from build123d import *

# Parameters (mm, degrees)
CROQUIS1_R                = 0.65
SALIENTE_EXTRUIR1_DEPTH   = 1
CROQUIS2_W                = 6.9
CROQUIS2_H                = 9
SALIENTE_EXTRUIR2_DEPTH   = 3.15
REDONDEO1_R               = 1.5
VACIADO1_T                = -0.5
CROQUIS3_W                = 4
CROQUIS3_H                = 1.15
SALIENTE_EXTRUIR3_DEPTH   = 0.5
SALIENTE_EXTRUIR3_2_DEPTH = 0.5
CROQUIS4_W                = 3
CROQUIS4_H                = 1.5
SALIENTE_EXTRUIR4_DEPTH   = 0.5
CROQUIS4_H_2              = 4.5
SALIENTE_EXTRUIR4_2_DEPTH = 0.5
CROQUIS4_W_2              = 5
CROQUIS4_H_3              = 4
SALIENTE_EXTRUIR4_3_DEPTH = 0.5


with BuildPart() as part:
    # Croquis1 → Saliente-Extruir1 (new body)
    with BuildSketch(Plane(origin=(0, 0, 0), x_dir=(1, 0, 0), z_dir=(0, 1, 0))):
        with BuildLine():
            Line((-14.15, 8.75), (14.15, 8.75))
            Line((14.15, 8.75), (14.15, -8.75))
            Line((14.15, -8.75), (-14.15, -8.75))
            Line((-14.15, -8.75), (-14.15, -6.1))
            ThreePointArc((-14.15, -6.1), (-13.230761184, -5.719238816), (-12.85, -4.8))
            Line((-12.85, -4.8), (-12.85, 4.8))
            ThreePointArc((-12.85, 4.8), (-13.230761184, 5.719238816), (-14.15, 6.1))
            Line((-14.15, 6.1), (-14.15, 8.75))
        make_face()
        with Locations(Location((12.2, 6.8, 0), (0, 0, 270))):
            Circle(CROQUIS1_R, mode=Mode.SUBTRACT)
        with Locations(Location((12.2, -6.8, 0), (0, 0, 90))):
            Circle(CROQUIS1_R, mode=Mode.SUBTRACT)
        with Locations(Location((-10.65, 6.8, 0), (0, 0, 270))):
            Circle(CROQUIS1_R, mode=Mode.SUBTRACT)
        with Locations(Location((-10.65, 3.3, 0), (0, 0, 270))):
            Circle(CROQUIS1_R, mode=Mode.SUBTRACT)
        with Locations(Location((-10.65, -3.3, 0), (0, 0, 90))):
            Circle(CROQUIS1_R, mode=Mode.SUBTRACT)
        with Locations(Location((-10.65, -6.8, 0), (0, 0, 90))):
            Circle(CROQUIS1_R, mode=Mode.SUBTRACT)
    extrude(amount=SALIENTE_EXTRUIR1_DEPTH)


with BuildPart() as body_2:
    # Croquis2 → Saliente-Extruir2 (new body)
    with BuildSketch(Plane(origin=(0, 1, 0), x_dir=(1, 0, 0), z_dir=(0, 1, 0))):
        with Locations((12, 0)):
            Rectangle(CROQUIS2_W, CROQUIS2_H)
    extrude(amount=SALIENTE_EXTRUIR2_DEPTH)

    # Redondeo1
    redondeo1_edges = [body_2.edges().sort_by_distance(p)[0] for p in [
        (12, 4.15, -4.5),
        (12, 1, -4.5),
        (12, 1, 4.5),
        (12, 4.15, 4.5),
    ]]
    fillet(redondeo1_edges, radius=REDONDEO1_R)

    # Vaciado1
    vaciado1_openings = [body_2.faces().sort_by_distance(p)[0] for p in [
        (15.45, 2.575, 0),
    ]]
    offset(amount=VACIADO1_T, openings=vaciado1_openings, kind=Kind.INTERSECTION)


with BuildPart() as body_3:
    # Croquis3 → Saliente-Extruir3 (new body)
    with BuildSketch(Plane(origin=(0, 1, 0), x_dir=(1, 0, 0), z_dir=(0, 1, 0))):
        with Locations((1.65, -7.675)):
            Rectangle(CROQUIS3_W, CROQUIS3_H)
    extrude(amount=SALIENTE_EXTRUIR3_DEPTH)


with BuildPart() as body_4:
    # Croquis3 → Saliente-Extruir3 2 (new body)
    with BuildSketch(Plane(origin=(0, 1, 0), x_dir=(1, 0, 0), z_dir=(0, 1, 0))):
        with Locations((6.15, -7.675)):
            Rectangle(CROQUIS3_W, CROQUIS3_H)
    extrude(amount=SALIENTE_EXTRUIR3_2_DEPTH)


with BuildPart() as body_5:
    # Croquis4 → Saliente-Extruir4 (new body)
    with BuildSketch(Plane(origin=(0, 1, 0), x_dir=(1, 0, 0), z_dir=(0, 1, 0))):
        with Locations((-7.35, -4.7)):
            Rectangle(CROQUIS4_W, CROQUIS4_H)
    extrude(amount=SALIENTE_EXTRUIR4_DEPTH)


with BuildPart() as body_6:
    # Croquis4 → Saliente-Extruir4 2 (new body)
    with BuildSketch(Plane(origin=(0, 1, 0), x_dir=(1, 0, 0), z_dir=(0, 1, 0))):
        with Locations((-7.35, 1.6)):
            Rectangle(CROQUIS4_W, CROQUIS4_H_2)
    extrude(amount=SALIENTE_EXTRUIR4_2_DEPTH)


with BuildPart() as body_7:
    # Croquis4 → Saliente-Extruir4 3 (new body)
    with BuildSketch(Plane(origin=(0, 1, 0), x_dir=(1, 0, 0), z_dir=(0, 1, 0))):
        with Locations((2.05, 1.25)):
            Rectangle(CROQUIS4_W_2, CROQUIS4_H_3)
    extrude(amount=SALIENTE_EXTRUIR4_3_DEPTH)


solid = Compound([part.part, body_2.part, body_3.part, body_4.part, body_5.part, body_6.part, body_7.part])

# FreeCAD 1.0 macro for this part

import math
import FreeCAD as App
import Part
import Sketcher

V = App.Vector


def edges_at(feature, points):
    """Names of the edges that pass closest to the given points."""
    edges = feature.Shape.Edges
    near = lambda p: min(range(len(edges)), key=lambda i: edges[i].distToShape(Part.Vertex(*p))[0])
    return sorted({f"Edge{near(p) + 1}" for p in points})


def faces_at(feature, points):
    """Names of the faces that lie closest to the given points."""
    faces = feature.Shape.Faces
    near = lambda p: min(range(len(faces)), key=lambda i: faces[i].distToShape(Part.Vertex(*p))[0])
    return sorted({f"Face{near(p) + 1}" for p in points})

doc = App.newDocument("Part")
body = doc.addObject("PartDesign::Body", "Body")

# Sketch on XZ plane
sketch1 = body.newObject("Sketcher::SketchObject", "Sketch")
sketch1.AttachmentSupport = (doc.getObject("XZ_Plane"), [""])
sketch1.MapMode = "FlatFace"
sketch1.addGeometry(Part.LineSegment(V(14.15, -8.75, 0), V(-14.15, -8.75, 0)), False)
sketch1.addGeometry(Part.LineSegment(V(-14.15, -8.75, 0), V(-14.15, -6.1, 0)), False)
sketch1.addGeometry(Part.ArcOfCircle(Part.Circle(V(-14.15, -4.8, 0), V(0, 0, 1), 1.3), math.radians(-90), math.radians(0)), False)
sketch1.addGeometry(Part.LineSegment(V(-12.85, -4.8, 0), V(-12.85, 4.8, 0)), False)
sketch1.addGeometry(Part.ArcOfCircle(Part.Circle(V(-14.15, 4.8, 0), V(0, 0, 1), 1.3), math.radians(0), math.radians(90)), False)
sketch1.addGeometry(Part.LineSegment(V(-14.15, 6.1, 0), V(-14.15, 8.75, 0)), False)
sketch1.addGeometry(Part.LineSegment(V(-14.15, 8.75, 0), V(14.15, 8.75, 0)), False)
sketch1.addGeometry(Part.LineSegment(V(14.15, 8.75, 0), V(14.15, -8.75, 0)), False)
sketch1.addGeometry(Part.Circle(V(12.2, 6.8, 0), V(0, 0, 1), 0.65), False)
sketch1.addGeometry(Part.Circle(V(-10.65, 6.8, 0), V(0, 0, 1), 0.65), False)
sketch1.addGeometry(Part.Circle(V(-10.65, 3.3, 0), V(0, 0, 1), 0.65), False)
sketch1.addGeometry(Part.Circle(V(12.2, -6.8, 0), V(0, 0, 1), 0.65), False)
sketch1.addGeometry(Part.Circle(V(-10.65, -3.3, 0), V(0, 0, 1), 0.65), False)
sketch1.addGeometry(Part.Circle(V(-10.65, -6.8, 0), V(0, 0, 1), 0.65), False)
sketch1.addConstraint(Sketcher.Constraint("Coincident", 0, 2, 1, 1))
sketch1.addConstraint(Sketcher.Constraint("Coincident", 1, 2, 2, 1))
sketch1.addConstraint(Sketcher.Constraint("Tangent", 2, 2, 3, 1))
sketch1.addConstraint(Sketcher.Constraint("Tangent", 3, 2, 4, 1))
sketch1.addConstraint(Sketcher.Constraint("Coincident", 4, 2, 5, 1))
sketch1.addConstraint(Sketcher.Constraint("Coincident", 5, 2, 6, 1))
sketch1.addConstraint(Sketcher.Constraint("Coincident", 6, 2, 7, 1))
sketch1.addConstraint(Sketcher.Constraint("Coincident", 7, 2, 0, 1))
sketch1.addConstraint(Sketcher.Constraint("Horizontal", 0))
sketch1.addConstraint(Sketcher.Constraint("Vertical", 1))
sketch1.addConstraint(Sketcher.Constraint("Vertical", 3))
sketch1.addConstraint(Sketcher.Constraint("Vertical", 5))
sketch1.addConstraint(Sketcher.Constraint("Horizontal", 6))
sketch1.addConstraint(Sketcher.Constraint("Vertical", 7))
sketch1.addConstraint(Sketcher.Constraint("Equal", 2, 4))
sketch1.addConstraint(Sketcher.Constraint("Equal", 8, 9))
sketch1.addConstraint(Sketcher.Constraint("Equal", 9, 10))
sketch1.addConstraint(Sketcher.Constraint("Equal", 10, 11))
sketch1.addConstraint(Sketcher.Constraint("Equal", 11, 12))
sketch1.addConstraint(Sketcher.Constraint("Equal", 12, 13))
sketch1.addConstraint(Sketcher.Constraint("Symmetric", 0, 2, 6, 2, -1, 1))
sketch1.addConstraint(Sketcher.Constraint("Symmetric", 8, 3, 11, 3, -1))
sketch1.addConstraint(Sketcher.Constraint("Symmetric", 10, 3, 12, 3, -1))
sketch1.addConstraint(Sketcher.Constraint("Symmetric", 9, 3, 13, 3, -1))
sketch1.addConstraint(Sketcher.Constraint("Symmetric", 1, 2, 4, 2, -1))
sketch1.addConstraint(Sketcher.Constraint("Horizontal", 8, 3, 9, 3))
sketch1.addConstraint(Sketcher.Constraint("Vertical", 9, 3, 10, 3))
sketch1.addConstraint(Sketcher.Constraint("Vertical", 4, 3, 0, 2))
sketch1.addConstraint(Sketcher.Constraint("Diameter", 8, 1.3))
sketch1.addConstraint(Sketcher.Constraint("Radius", 2, 1.3))
sketch1.addConstraint(Sketcher.Constraint("DistanceX", 0, 2, 0, 1, 28.3))
sketch1.addConstraint(Sketcher.Constraint("DistanceY", 3, 1, 3, 2, 9.6))
sketch1.addConstraint(Sketcher.Constraint("DistanceY", 7, 2, 7, 1, 17.5))
sketch1.addConstraint(Sketcher.Constraint("DistanceY", 4, 3, 8, 3, 2.0))
sketch1.addConstraint(Sketcher.Constraint("DistanceX", -1, 1, 8, 3, 12.2))
sketch1.addConstraint(Sketcher.Constraint("DistanceY", -1, 1, 10, 3, 3.3))
sketch1.addConstraint(Sketcher.Constraint("DistanceX", 4, 3, 9, 3, 3.5))
pad1 = body.newObject("PartDesign::Pad", "Pad")
pad1.Profile = sketch1
pad1.Length = 1
pad1.Reversed = True
body2 = doc.addObject("PartDesign::Body", "Body001")

# Sketch on XZ plane
sketch2 = body2.newObject("Sketcher::SketchObject", "Sketch001")
sketch2.AttachmentSupport = (doc.getObject("XZ_Plane001"), [""])
sketch2.MapMode = "FlatFace"
sketch2.AttachmentOffset = App.Placement(V(0, 0, -1), App.Rotation())
sketch2.addGeometry(Part.LineSegment(V(8.55, -4.5, 0), V(8.55, 4.5, 0)), False)
sketch2.addGeometry(Part.LineSegment(V(8.55, 4.5, 0), V(15.45, 4.5, 0)), False)
sketch2.addGeometry(Part.LineSegment(V(15.45, 4.5, 0), V(15.45, -4.5, 0)), False)
sketch2.addGeometry(Part.LineSegment(V(15.45, -4.5, 0), V(8.55, -4.5, 0)), False)
sketch2.addConstraint(Sketcher.Constraint("Coincident", 0, 2, 1, 1))
sketch2.addConstraint(Sketcher.Constraint("Coincident", 1, 2, 2, 1))
sketch2.addConstraint(Sketcher.Constraint("Coincident", 2, 2, 3, 1))
sketch2.addConstraint(Sketcher.Constraint("Coincident", 3, 2, 0, 1))
sketch2.addConstraint(Sketcher.Constraint("Vertical", 0))
sketch2.addConstraint(Sketcher.Constraint("Horizontal", 1))
sketch2.addConstraint(Sketcher.Constraint("Vertical", 2))
sketch2.addConstraint(Sketcher.Constraint("Horizontal", 3))
sketch2.addConstraint(Sketcher.Constraint("DistanceY", 0, 1, 0, 2, 9.0))
sketch2.addConstraint(Sketcher.Constraint("DistanceX", 1, 1, 1, 2, 6.9))
sketch2.addConstraint(Sketcher.Constraint("DistanceY", -1, 1, 0, 2, 4.5))
sketch2.addConstraint(Sketcher.Constraint("DistanceX", -1, 1, 0, 2, 8.55))
pad2 = body2.newObject("PartDesign::Pad", "Pad001")
pad2.Profile = sketch2
pad2.Length = 3.15
pad2.Reversed = True
doc.recompute()

fillet = body2.newObject("PartDesign::Fillet", "Fillet")
fillet.Base = (pad2, edges_at(pad2, [
    (12, 4.15, -4.5),
    (12, 1, -4.5),
    (12, 1, 4.5),
    (12, 4.15, 4.5),
]))
fillet.Radius = 1.5
doc.recompute()

thickness = body2.newObject("PartDesign::Thickness", "Thickness")
thickness.Base = (fillet, faces_at(fillet, [(15.45, 2.575, 0)]))
thickness.Value = 0.5
thickness.Reversed = True
thickness.Join = "Intersection"
body3 = doc.addObject("PartDesign::Body", "Body002")

# Sketch on XZ plane
sketch3 = body3.newObject("Sketcher::SketchObject", "Sketch002")
sketch3.AttachmentSupport = (doc.getObject("XZ_Plane002"), [""])
sketch3.MapMode = "FlatFace"
sketch3.AttachmentOffset = App.Placement(V(0, 0, -1), App.Rotation())
sketch3.addGeometry(Part.LineSegment(V(-0.35, 7.1, 0), V(-0.35, 8.25, 0)), False)
sketch3.addGeometry(Part.LineSegment(V(-0.35, 8.25, 0), V(3.65, 8.25, 0)), False)
sketch3.addGeometry(Part.LineSegment(V(3.65, 8.25, 0), V(3.65, 7.1, 0)), False)
sketch3.addGeometry(Part.LineSegment(V(3.65, 7.1, 0), V(-0.35, 7.1, 0)), False)
sketch3.addConstraint(Sketcher.Constraint("Coincident", 0, 2, 1, 1))
sketch3.addConstraint(Sketcher.Constraint("Coincident", 1, 2, 2, 1))
sketch3.addConstraint(Sketcher.Constraint("Coincident", 2, 2, 3, 1))
sketch3.addConstraint(Sketcher.Constraint("Coincident", 3, 2, 0, 1))
sketch3.addConstraint(Sketcher.Constraint("Vertical", 0))
sketch3.addConstraint(Sketcher.Constraint("Horizontal", 1))
sketch3.addConstraint(Sketcher.Constraint("Vertical", 2))
sketch3.addConstraint(Sketcher.Constraint("Horizontal", 3))
sketch3.addConstraint(Sketcher.Constraint("DistanceX", 1, 1, 1, 2, 4.0))
sketch3.addConstraint(Sketcher.Constraint("DistanceY", 0, 1, 0, 2, 1.15))
sketch3.addConstraint(Sketcher.Constraint("DistanceY", -1, 1, 2, 2, 7.1))
sketch3.addConstraint(Sketcher.Constraint("DistanceX", 0, 2, -1, 1, 0.35))
pad3 = body3.newObject("PartDesign::Pad", "Pad002")
pad3.Profile = sketch3
pad3.Length = 0.5
pad3.Reversed = True
body4 = doc.addObject("PartDesign::Body", "Body003")

# Sketch on XZ plane
sketch4 = body4.newObject("Sketcher::SketchObject", "Sketch003")
sketch4.AttachmentSupport = (doc.getObject("XZ_Plane003"), [""])
sketch4.MapMode = "FlatFace"
sketch4.AttachmentOffset = App.Placement(V(0, 0, -1), App.Rotation())
sketch4.addGeometry(Part.LineSegment(V(4.15, 7.1, 0), V(4.15, 8.25, 0)), False)
sketch4.addGeometry(Part.LineSegment(V(4.15, 8.25, 0), V(8.15, 8.25, 0)), False)
sketch4.addGeometry(Part.LineSegment(V(8.15, 8.25, 0), V(8.15, 7.1, 0)), False)
sketch4.addGeometry(Part.LineSegment(V(8.15, 7.1, 0), V(4.15, 7.1, 0)), False)
sketch4.addConstraint(Sketcher.Constraint("Coincident", 0, 2, 1, 1))
sketch4.addConstraint(Sketcher.Constraint("Coincident", 1, 2, 2, 1))
sketch4.addConstraint(Sketcher.Constraint("Coincident", 2, 2, 3, 1))
sketch4.addConstraint(Sketcher.Constraint("Coincident", 3, 2, 0, 1))
sketch4.addConstraint(Sketcher.Constraint("Vertical", 0))
sketch4.addConstraint(Sketcher.Constraint("Horizontal", 1))
sketch4.addConstraint(Sketcher.Constraint("Vertical", 2))
sketch4.addConstraint(Sketcher.Constraint("Horizontal", 3))
sketch4.addConstraint(Sketcher.Constraint("DistanceX", 1, 1, 1, 2, 4.0))
sketch4.addConstraint(Sketcher.Constraint("DistanceY", 0, 1, 0, 2, 1.15))
sketch4.addConstraint(Sketcher.Constraint("DistanceY", -1, 1, 2, 2, 7.1))
sketch4.addConstraint(Sketcher.Constraint("DistanceX", -1, 1, 0, 2, 4.15))
pad4 = body4.newObject("PartDesign::Pad", "Pad003")
pad4.Profile = sketch4
pad4.Length = 0.5
pad4.Reversed = True
body5 = doc.addObject("PartDesign::Body", "Body004")

# Sketch on XZ plane
sketch5 = body5.newObject("Sketcher::SketchObject", "Sketch004")
sketch5.AttachmentSupport = (doc.getObject("XZ_Plane004"), [""])
sketch5.MapMode = "FlatFace"
sketch5.AttachmentOffset = App.Placement(V(0, 0, -1), App.Rotation())
sketch5.addGeometry(Part.LineSegment(V(-8.85, 3.95, 0), V(-8.85, 5.45, 0)), False)
sketch5.addGeometry(Part.LineSegment(V(-8.85, 5.45, 0), V(-5.85, 5.45, 0)), False)
sketch5.addGeometry(Part.LineSegment(V(-5.85, 5.45, 0), V(-5.85, 3.95, 0)), False)
sketch5.addGeometry(Part.LineSegment(V(-5.85, 3.95, 0), V(-8.85, 3.95, 0)), False)
sketch5.addConstraint(Sketcher.Constraint("Coincident", 0, 2, 1, 1))
sketch5.addConstraint(Sketcher.Constraint("Coincident", 1, 2, 2, 1))
sketch5.addConstraint(Sketcher.Constraint("Coincident", 2, 2, 3, 1))
sketch5.addConstraint(Sketcher.Constraint("Coincident", 3, 2, 0, 1))
sketch5.addConstraint(Sketcher.Constraint("Vertical", 0))
sketch5.addConstraint(Sketcher.Constraint("Horizontal", 1))
sketch5.addConstraint(Sketcher.Constraint("Vertical", 2))
sketch5.addConstraint(Sketcher.Constraint("Horizontal", 3))
sketch5.addConstraint(Sketcher.Constraint("DistanceX", 1, 1, 1, 2, 3.0))
sketch5.addConstraint(Sketcher.Constraint("DistanceY", 0, 1, 0, 2, 1.5))
sketch5.addConstraint(Sketcher.Constraint("DistanceX", 0, 2, -1, 1, 8.85))
sketch5.addConstraint(Sketcher.Constraint("DistanceY", -1, 1, 0, 2, 5.45))
pad5 = body5.newObject("PartDesign::Pad", "Pad004")
pad5.Profile = sketch5
pad5.Length = 0.5
pad5.Reversed = True
body6 = doc.addObject("PartDesign::Body", "Body005")

# Sketch on XZ plane
sketch6 = body6.newObject("Sketcher::SketchObject", "Sketch005")
sketch6.AttachmentSupport = (doc.getObject("XZ_Plane005"), [""])
sketch6.MapMode = "FlatFace"
sketch6.AttachmentOffset = App.Placement(V(0, 0, -1), App.Rotation())
sketch6.addGeometry(Part.LineSegment(V(-8.85, -3.85, 0), V(-8.85, 0.65, 0)), False)
sketch6.addGeometry(Part.LineSegment(V(-8.85, 0.65, 0), V(-5.85, 0.65, 0)), False)
sketch6.addGeometry(Part.LineSegment(V(-5.85, 0.65, 0), V(-5.85, -3.85, 0)), False)
sketch6.addGeometry(Part.LineSegment(V(-5.85, -3.85, 0), V(-8.85, -3.85, 0)), False)
sketch6.addConstraint(Sketcher.Constraint("Coincident", 0, 2, 1, 1))
sketch6.addConstraint(Sketcher.Constraint("Coincident", 1, 2, 2, 1))
sketch6.addConstraint(Sketcher.Constraint("Coincident", 2, 2, 3, 1))
sketch6.addConstraint(Sketcher.Constraint("Coincident", 3, 2, 0, 1))
sketch6.addConstraint(Sketcher.Constraint("Vertical", 0))
sketch6.addConstraint(Sketcher.Constraint("Horizontal", 1))
sketch6.addConstraint(Sketcher.Constraint("Vertical", 2))
sketch6.addConstraint(Sketcher.Constraint("Horizontal", 3))
sketch6.addConstraint(Sketcher.Constraint("DistanceX", 1, 1, 1, 2, 3.0))
sketch6.addConstraint(Sketcher.Constraint("DistanceY", 0, 1, 0, 2, 4.5))
sketch6.addConstraint(Sketcher.Constraint("DistanceX", 0, 2, -1, 1, 8.85))
sketch6.addConstraint(Sketcher.Constraint("DistanceY", -1, 1, 0, 2, 0.65))
pad6 = body6.newObject("PartDesign::Pad", "Pad005")
pad6.Profile = sketch6
pad6.Length = 0.5
pad6.Reversed = True
body7 = doc.addObject("PartDesign::Body", "Body006")

# Sketch on XZ plane
sketch7 = body7.newObject("Sketcher::SketchObject", "Sketch006")
sketch7.AttachmentSupport = (doc.getObject("XZ_Plane006"), [""])
sketch7.MapMode = "FlatFace"
sketch7.AttachmentOffset = App.Placement(V(0, 0, -1), App.Rotation())
sketch7.addGeometry(Part.LineSegment(V(-0.45, -3.25, 0), V(-0.45, 0.75, 0)), False)
sketch7.addGeometry(Part.LineSegment(V(-0.45, 0.75, 0), V(4.55, 0.75, 0)), False)
sketch7.addGeometry(Part.LineSegment(V(4.55, 0.75, 0), V(4.55, -3.25, 0)), False)
sketch7.addGeometry(Part.LineSegment(V(4.55, -3.25, 0), V(-0.45, -3.25, 0)), False)
sketch7.addConstraint(Sketcher.Constraint("Coincident", 0, 2, 1, 1))
sketch7.addConstraint(Sketcher.Constraint("Coincident", 1, 2, 2, 1))
sketch7.addConstraint(Sketcher.Constraint("Coincident", 2, 2, 3, 1))
sketch7.addConstraint(Sketcher.Constraint("Coincident", 3, 2, 0, 1))
sketch7.addConstraint(Sketcher.Constraint("Vertical", 0))
sketch7.addConstraint(Sketcher.Constraint("Horizontal", 1))
sketch7.addConstraint(Sketcher.Constraint("Vertical", 2))
sketch7.addConstraint(Sketcher.Constraint("Horizontal", 3))
sketch7.addConstraint(Sketcher.Constraint("DistanceX", 1, 1, 1, 2, 5.0))
sketch7.addConstraint(Sketcher.Constraint("DistanceY", 0, 1, 0, 2, 4.0))
sketch7.addConstraint(Sketcher.Constraint("DistanceX", 0, 2, -1, 1, 0.45))
sketch7.addConstraint(Sketcher.Constraint("DistanceY", -1, 1, 0, 2, 0.75))
pad7 = body7.newObject("PartDesign::Pad", "Pad006")
pad7.Profile = sketch7
pad7.Length = 0.5
pad7.Reversed = True

doc.recompute()
